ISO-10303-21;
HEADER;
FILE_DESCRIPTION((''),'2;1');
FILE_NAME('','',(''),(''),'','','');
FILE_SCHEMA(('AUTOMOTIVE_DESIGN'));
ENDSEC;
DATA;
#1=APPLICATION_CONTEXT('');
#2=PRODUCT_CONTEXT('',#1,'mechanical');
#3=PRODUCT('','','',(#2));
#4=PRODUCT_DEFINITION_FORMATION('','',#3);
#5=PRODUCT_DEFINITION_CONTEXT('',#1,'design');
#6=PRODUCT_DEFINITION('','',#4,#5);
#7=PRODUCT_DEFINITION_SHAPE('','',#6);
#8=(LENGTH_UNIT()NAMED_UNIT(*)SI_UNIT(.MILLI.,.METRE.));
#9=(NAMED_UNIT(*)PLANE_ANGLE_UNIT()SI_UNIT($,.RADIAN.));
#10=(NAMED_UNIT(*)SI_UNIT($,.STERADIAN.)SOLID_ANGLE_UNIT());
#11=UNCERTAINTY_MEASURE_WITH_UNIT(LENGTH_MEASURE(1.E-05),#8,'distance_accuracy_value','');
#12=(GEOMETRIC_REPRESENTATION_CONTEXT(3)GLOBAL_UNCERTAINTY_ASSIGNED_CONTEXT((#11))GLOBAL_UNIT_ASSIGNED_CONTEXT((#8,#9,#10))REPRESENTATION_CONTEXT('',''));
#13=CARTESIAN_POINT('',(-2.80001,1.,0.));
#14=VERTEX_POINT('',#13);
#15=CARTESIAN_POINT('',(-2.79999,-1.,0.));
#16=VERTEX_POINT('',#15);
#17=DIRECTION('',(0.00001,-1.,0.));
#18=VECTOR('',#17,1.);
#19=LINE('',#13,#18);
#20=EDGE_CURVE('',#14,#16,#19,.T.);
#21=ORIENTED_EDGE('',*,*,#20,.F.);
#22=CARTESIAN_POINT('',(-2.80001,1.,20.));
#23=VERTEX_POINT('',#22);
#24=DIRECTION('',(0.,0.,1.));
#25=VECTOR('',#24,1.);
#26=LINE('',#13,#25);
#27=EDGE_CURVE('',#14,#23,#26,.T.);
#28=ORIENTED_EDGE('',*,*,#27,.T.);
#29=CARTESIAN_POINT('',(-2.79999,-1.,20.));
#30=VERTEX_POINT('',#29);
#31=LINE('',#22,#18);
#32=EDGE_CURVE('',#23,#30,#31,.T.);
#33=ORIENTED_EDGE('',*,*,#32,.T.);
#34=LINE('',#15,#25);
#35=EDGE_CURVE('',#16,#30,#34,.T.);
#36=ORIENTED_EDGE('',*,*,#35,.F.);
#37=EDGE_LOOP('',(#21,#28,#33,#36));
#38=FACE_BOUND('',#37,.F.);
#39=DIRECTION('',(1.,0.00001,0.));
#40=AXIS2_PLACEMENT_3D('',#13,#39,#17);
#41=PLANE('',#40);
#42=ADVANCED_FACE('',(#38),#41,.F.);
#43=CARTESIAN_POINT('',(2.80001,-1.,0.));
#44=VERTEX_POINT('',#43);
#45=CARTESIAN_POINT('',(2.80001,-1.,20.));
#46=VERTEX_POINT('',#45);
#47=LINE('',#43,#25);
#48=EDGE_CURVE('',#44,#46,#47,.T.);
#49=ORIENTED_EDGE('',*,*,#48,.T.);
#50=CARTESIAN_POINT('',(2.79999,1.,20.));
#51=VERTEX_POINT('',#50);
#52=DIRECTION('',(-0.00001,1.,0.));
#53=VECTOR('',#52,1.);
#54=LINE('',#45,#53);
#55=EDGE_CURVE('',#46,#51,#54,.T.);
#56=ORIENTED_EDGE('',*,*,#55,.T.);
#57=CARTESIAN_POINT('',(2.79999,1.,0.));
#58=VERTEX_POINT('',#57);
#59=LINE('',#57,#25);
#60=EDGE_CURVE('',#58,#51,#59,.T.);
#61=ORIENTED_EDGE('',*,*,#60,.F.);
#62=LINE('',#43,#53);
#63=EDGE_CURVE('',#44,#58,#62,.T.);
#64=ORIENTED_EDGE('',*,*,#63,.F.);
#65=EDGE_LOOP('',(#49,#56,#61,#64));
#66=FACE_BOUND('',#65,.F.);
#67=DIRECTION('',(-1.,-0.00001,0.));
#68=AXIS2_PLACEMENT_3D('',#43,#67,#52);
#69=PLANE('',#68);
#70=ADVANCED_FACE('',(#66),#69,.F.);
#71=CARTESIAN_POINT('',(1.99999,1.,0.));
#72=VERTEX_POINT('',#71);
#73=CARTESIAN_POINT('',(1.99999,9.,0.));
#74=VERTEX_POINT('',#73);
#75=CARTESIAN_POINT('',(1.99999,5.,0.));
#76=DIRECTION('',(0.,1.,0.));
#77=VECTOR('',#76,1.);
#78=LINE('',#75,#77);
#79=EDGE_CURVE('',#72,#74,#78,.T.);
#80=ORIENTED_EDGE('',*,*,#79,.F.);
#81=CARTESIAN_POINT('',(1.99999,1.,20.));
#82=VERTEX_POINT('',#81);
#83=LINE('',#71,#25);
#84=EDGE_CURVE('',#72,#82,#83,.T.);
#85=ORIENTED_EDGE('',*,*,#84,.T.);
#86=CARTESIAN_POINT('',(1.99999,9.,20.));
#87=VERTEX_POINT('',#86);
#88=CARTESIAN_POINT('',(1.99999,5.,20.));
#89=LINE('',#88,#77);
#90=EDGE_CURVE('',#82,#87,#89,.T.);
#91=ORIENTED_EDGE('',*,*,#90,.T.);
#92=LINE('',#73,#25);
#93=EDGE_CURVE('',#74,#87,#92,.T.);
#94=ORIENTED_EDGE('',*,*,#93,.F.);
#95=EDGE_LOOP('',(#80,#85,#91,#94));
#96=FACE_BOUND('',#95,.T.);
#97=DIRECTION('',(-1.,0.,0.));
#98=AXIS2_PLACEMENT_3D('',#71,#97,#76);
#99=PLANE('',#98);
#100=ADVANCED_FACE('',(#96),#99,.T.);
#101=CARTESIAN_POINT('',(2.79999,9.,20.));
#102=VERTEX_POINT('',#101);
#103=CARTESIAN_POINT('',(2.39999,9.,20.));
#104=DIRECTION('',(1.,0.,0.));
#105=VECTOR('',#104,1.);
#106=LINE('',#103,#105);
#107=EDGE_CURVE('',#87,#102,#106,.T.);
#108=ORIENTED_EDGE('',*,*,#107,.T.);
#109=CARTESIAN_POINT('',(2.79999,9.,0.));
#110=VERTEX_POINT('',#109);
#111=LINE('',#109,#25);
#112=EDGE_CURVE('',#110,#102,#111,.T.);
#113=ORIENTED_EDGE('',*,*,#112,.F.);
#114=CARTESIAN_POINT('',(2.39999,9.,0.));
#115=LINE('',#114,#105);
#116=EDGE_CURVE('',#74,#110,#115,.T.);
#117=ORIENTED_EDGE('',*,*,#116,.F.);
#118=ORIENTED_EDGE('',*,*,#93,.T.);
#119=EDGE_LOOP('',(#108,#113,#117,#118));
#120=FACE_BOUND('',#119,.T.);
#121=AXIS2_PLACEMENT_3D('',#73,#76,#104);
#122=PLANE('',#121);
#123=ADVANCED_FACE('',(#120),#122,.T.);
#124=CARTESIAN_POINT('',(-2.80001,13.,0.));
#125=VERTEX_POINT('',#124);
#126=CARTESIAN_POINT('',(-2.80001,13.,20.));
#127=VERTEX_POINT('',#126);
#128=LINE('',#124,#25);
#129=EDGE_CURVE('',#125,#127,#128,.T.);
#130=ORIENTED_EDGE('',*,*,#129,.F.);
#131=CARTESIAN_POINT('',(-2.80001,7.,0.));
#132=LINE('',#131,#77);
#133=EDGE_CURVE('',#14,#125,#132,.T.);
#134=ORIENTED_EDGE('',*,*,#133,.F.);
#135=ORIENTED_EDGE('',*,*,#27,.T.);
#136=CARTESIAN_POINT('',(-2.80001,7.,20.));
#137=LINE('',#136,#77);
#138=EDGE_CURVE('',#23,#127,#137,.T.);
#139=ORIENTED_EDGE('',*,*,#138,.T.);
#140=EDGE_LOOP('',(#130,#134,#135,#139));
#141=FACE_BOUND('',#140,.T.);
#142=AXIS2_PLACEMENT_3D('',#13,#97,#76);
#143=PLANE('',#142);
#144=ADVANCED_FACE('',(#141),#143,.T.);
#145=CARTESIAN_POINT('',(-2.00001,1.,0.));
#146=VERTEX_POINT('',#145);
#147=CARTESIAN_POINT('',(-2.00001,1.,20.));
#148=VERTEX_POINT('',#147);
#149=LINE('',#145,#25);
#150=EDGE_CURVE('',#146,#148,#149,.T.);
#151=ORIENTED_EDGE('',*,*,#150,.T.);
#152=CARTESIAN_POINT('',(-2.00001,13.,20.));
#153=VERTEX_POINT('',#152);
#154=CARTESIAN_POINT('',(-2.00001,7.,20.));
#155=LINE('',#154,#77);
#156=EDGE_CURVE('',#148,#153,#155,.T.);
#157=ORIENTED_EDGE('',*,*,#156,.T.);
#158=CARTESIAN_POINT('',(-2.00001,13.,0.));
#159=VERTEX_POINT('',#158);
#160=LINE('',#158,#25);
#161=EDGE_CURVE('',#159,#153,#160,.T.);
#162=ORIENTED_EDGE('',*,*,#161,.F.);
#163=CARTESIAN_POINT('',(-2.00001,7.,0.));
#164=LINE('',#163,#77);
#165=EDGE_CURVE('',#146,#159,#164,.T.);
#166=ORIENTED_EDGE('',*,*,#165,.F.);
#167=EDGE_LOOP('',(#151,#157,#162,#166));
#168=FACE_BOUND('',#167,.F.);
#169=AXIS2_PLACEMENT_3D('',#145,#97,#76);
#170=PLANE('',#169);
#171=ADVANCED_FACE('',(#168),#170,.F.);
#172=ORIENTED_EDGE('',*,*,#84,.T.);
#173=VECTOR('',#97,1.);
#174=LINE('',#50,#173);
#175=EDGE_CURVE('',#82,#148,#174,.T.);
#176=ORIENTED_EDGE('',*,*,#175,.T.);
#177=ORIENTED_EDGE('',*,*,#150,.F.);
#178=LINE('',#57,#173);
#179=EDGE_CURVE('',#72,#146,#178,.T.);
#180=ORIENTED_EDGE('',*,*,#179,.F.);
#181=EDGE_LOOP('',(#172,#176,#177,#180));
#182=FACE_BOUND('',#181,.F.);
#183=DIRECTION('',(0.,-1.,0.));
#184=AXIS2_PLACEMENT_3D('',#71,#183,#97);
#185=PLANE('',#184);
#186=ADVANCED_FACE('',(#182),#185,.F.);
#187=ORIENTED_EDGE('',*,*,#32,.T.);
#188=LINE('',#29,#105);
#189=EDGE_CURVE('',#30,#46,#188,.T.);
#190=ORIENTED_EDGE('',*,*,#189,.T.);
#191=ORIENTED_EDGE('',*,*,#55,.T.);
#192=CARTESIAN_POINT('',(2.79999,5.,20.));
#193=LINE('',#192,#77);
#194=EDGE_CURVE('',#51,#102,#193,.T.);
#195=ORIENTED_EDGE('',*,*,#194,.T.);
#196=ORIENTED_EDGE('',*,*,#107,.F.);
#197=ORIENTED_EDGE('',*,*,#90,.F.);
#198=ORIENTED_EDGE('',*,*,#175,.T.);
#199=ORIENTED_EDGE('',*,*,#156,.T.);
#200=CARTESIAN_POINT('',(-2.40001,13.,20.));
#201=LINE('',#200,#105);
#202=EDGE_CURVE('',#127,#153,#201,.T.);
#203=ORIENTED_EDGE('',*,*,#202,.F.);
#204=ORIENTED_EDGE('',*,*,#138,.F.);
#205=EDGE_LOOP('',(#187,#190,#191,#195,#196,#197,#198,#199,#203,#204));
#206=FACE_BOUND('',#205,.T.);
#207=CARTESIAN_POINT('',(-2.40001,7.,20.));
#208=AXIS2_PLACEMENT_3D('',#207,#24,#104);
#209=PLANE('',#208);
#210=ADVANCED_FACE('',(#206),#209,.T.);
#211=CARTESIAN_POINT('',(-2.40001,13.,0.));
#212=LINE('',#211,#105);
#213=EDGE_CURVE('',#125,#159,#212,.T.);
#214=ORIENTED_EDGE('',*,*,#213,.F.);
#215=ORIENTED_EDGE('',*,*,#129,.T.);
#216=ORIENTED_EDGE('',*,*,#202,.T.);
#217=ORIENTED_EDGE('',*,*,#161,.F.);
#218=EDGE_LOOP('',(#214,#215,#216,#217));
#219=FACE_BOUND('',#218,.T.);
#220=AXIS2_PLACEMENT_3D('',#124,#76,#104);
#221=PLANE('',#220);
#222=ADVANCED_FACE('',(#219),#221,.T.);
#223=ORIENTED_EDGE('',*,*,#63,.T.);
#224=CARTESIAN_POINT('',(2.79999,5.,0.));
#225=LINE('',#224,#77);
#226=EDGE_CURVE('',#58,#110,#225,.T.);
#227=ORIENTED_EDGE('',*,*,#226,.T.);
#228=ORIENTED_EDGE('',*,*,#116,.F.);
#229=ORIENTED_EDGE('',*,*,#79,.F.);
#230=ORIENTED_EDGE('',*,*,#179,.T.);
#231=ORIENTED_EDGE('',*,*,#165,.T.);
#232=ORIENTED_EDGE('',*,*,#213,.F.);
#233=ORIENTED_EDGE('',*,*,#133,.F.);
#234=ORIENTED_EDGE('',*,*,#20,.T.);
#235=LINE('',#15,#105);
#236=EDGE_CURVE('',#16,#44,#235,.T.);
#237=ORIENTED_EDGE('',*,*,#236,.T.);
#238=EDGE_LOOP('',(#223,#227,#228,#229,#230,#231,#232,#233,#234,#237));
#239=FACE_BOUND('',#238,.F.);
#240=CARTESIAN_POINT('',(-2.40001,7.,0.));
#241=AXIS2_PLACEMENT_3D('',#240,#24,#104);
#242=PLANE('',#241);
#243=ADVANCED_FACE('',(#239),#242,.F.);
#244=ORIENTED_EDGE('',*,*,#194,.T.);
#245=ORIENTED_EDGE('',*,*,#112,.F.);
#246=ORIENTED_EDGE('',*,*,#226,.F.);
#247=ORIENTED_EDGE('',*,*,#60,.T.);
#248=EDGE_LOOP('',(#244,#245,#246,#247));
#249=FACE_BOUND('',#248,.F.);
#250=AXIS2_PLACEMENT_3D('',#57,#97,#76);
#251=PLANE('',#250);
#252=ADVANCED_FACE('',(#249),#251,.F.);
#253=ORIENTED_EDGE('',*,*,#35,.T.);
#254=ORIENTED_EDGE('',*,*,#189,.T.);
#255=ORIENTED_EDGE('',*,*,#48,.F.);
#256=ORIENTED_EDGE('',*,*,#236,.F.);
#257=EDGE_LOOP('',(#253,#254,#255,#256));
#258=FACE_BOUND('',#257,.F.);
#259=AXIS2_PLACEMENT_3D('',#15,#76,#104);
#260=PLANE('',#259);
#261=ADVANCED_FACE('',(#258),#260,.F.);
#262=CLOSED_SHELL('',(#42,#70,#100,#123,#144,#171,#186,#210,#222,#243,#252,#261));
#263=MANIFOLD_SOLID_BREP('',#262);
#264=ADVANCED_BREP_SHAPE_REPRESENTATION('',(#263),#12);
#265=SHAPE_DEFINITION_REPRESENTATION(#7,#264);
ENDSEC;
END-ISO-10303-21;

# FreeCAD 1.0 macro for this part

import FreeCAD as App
import Part
import Sketcher
from FreeCAD import Vector


def add_polygon(sketch, points):
    """Adds a closed chain of lines whose ends are joined by coincident constraints."""
    first, n = sketch.GeometryCount, len(points)
    for a, b in zip(points, points[1:] + points[:1]):
        sketch.addGeometry(Part.LineSegment(App.Vector(*a, 0), App.Vector(*b, 0)), False)
    for i in range(n):
        sketch.addConstraint(Sketcher.Constraint("Coincident", first + i, 2, first + (i + 1) % n, 1))

doc = App.newDocument("Part")
params = doc.addObject("Spreadsheet::Sheet", "Params")
for row, (alias, value) in enumerate([
    ("sketch1_width", "4 mm"),
    ("sketch1_height", "12 mm"),
    ("sketch1_height2", "8 mm"),
    ("sketch1_length", "2 mm"),
    ("sketch1_width2", "5.6 mm"),
    ("pad1_length", "20 mm"),
], start=1):
    params.set(f"A{row}", alias)
    params.set(f"B{row}", "=" + value)
    params.setAlias(f"B{row}", alias)

body = doc.addObject("PartDesign::Body", "Body")

sketch1 = body.newObject("Sketcher::SketchObject", "Sketch")
sketch1.AttachmentSupport = (doc.getObject("XY_Plane"), [""])
sketch1.MapMode = "FlatFace"
add_polygon(sketch1, [(-2.80001, 13), (-2.80001, 1), (-2.79999, -1), (2.80001, -1), (2.79999, 1), (2.79999, 9), (1.99999, 9), (1.99999, 1), (-2.00001, 1), (-2.00001, 13)])
sketch1.addConstraint([
    Sketcher.Constraint("Vertical", 0),
    Sketcher.Constraint("Horizontal", 2),
    Sketcher.Constraint("Vertical", 4),
    Sketcher.Constraint("Horizontal", 5),
    Sketcher.Constraint("Vertical", 6),
    Sketcher.Constraint("Horizontal", 7),
    Sketcher.Constraint("Vertical", 8),
    Sketcher.Constraint("Horizontal", 9),
    Sketcher.Constraint("Symmetric", 0, 2, 2, 2, -1, 1),
    Sketcher.Constraint("Symmetric", 1, 2, 3, 2, -1, 1),
    Sketcher.Constraint("Horizontal", 3, 2, 6, 2),
    Sketcher.Constraint("Equal", 5, 9),
    Sketcher.Constraint("DistanceX", 7, 2, 7, 1, 4.0),
    Sketcher.Constraint("DistanceY", 0, 2, 0, 1, 12.0),
    Sketcher.Constraint("DistanceY", 4, 1, 4, 2, 8.0),
    Sketcher.Constraint("Distance", 1, 2.0),
    Sketcher.Constraint("DistanceX", 2, 1, 2, 2, 5.6),
    Sketcher.Constraint("DistanceX", 0, 2, -1, 1, 2.80001),
])
sketch1.setExpression("Constraints[22]", "Params.sketch1_width")
sketch1.setExpression("Constraints[23]", "Params.sketch1_height")
sketch1.setExpression("Constraints[24]", "Params.sketch1_height2")
sketch1.setExpression("Constraints[25]", "Params.sketch1_length")
sketch1.setExpression("Constraints[26]", "Params.sketch1_width2")
pad1 = body.newObject("PartDesign::Pad", "Pad")
pad1.Profile = sketch1
pad1.setExpression("Length", "Params.pad1_length")

doc.recompute()
